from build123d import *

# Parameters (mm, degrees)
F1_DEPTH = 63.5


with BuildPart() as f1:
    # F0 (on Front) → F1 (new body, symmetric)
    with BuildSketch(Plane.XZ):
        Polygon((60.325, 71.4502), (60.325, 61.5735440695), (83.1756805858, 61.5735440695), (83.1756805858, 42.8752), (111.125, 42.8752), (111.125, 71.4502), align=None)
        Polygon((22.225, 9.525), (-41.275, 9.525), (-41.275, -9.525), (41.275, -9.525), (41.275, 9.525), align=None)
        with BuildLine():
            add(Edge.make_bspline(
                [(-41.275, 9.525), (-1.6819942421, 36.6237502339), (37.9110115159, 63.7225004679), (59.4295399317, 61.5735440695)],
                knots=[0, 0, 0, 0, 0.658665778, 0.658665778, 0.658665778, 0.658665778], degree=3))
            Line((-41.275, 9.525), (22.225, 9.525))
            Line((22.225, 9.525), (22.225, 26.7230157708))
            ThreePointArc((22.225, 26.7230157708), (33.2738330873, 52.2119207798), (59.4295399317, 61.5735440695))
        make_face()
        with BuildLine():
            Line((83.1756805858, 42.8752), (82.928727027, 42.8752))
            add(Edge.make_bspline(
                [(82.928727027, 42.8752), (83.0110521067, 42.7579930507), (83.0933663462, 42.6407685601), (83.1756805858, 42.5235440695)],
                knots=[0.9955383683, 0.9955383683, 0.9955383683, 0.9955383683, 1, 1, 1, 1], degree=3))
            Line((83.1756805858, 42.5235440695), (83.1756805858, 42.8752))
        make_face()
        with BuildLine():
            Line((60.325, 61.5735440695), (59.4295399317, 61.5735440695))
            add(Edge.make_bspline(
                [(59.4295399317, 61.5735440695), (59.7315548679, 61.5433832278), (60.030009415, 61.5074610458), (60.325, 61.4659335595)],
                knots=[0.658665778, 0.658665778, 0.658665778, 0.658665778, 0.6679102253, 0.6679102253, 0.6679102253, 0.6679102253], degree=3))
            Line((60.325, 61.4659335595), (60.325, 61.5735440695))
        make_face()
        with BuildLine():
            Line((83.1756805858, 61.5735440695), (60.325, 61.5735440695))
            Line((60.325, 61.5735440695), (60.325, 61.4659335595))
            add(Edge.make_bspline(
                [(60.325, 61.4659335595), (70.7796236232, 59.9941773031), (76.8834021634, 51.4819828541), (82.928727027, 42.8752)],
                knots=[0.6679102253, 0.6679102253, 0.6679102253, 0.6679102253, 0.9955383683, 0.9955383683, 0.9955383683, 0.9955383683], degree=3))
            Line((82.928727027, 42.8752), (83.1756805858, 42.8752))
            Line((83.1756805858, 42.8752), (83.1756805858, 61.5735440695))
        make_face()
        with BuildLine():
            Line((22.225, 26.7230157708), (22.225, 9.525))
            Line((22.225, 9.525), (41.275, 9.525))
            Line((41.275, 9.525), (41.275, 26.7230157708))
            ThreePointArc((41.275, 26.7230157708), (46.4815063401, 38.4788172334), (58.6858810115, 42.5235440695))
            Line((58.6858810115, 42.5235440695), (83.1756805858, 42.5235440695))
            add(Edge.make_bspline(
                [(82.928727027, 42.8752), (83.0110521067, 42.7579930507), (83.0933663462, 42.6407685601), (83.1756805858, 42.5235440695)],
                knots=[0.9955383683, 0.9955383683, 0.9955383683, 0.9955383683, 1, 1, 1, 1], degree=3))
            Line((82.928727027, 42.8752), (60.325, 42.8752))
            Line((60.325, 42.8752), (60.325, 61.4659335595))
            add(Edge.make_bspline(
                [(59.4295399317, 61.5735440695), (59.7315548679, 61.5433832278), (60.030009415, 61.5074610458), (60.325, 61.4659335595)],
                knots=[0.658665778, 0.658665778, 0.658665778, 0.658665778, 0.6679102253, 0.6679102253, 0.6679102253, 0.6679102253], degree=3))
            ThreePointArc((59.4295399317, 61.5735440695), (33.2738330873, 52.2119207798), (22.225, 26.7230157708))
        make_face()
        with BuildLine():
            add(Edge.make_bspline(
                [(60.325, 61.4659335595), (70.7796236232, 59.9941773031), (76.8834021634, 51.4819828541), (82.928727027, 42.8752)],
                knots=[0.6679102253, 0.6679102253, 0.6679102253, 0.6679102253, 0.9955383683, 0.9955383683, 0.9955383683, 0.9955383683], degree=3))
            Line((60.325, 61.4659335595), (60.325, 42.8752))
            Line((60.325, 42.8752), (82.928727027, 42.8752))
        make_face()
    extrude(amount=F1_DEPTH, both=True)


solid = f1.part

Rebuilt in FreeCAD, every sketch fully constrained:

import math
import FreeCAD as App
import Part
import Sketcher
Q = App.Units.Quantity

doc = App.newDocument("Part")
params = doc.addObject("Spreadsheet::Sheet", "Params")
for row, (alias, value) in enumerate([
    ("sketch1_width", "2 in"),
    ("sketch1_radius", "0.625 in"),
    ("sketch1_width2", "3.25 in"),
    ("sketch1_height", "0.75 in"),
    ("sketch1_height2", "1.125 in"),
    ("pad1_length", "5 in"),
], start=1):
    params.set(f"A{row}", alias)
    params.set(f"B{row}", "=" + value)
    params.setAlias(f"B{row}", alias)

body = doc.addObject("PartDesign::Body", "Body")

# Sketch on XZ plane
sketch1 = body.newObject("Sketcher::SketchObject", "Sketch")
sketch1.AttachmentSupport = (doc.getObject("XZ_Plane"), [""])
sketch1.MapMode = "FlatFace"
sketch1.addGeometry([
    Part.LineSegment(App.Vector(60.325, 71.4502, 0), App.Vector(60.325, 61.573544, 0)),  # 0
    Part.LineSegment(App.Vector(60.325, 61.573544, 0), App.Vector(59.42954, 61.573544, 0)),  # 1
    Part.BSplineCurve([App.Vector(-41.275, 9.525, 0), App.Vector(-1.681994, 36.62375, 0), App.Vector(37.911012, 63.7225, 0), App.Vector(59.42954, 61.573544, 0)], [4, 4], [0, 0.658665778], False, 3, [1, 1, 1, 1], False),  # 2
    Part.LineSegment(App.Vector(-41.275, 9.525, 0), App.Vector(-41.275, -9.525, 0)),  # 3
    Part.LineSegment(App.Vector(-41.275, -9.525, 0), App.Vector(41.275, -9.525, 0)),  # 4
    Part.LineSegment(App.Vector(41.275, -9.525, 0), App.Vector(41.275, 26.723016, 0)),  # 5
    Part.ArcOfCircle(Part.Circle(App.Vector(57.15, 26.723016, 0), App.Vector(0, 0, 1), 15.875), math.radians(84.44804), math.radians(180)),  # 6
    Part.LineSegment(App.Vector(58.685881, 42.523544, 0), App.Vector(83.175681, 42.523544, 0)),  # 7
    Part.LineSegment(App.Vector(83.175681, 42.523544, 0), App.Vector(83.175681, 42.8752, 0)),  # 8
    Part.LineSegment(App.Vector(83.175681, 42.8752, 0), App.Vector(111.125, 42.8752, 0)),  # 9
    Part.LineSegment(App.Vector(111.125, 42.8752, 0), App.Vector(111.125, 71.4502, 0)),  # 10
    Part.LineSegment(App.Vector(111.125, 71.4502, 0), App.Vector(60.325, 71.4502, 0)),  # 11
], False)
sketch1.addConstraint([
    Sketcher.Constraint("Block", 2),
    Sketcher.Constraint("Coincident", 0, 2, 1, 1),
    Sketcher.Constraint("Coincident", 1, 2, 2, 2),
    Sketcher.Constraint("Coincident", 2, 1, 3, 1),
    Sketcher.Constraint("Coincident", 3, 2, 4, 1),
    Sketcher.Constraint("Coincident", 4, 2, 5, 1),
    Sketcher.Constraint("Tangent", 5, 2, 6, 2),
    Sketcher.Constraint("Coincident", 6, 1, 7, 1),
    Sketcher.Constraint("Coincident", 7, 2, 8, 1),
    Sketcher.Constraint("Coincident", 8, 2, 9, 1),
    Sketcher.Constraint("Coincident", 9, 2, 10, 1),
    Sketcher.Constraint("Coincident", 10, 2, 11, 1),
    Sketcher.Constraint("Coincident", 11, 2, 0, 1),
    Sketcher.Constraint("Vertical", 0),
    Sketcher.Constraint("Horizontal", 1),
    Sketcher.Constraint("Vertical", 3),
    Sketcher.Constraint("Horizontal", 4),
    Sketcher.Constraint("Vertical", 5),
    Sketcher.Constraint("Horizontal", 7),
    Sketcher.Constraint("Vertical", 8),
    Sketcher.Constraint("Horizontal", 9),
    Sketcher.Constraint("Vertical", 10),
    Sketcher.Constraint("Horizontal", 11),
    Sketcher.Constraint("DistanceX", 11, 2, 11, 1, Q("2 in")),
    Sketcher.Constraint("Radius", 6, Q("0.625 in")),
    Sketcher.Constraint("DistanceX", 3, 2, 0, 2, Q("4 in")),
    Sketcher.Constraint("DistanceX", 4, 1, 4, 2, Q("3.25 in")),
    Sketcher.Constraint("DistanceY", 3, 2, 3, 1, Q("0.75 in")),
    Sketcher.Constraint("DistanceY", 10, 1, 10, 2, Q("1.125 in")),
    Sketcher.Constraint("DistanceY", 6, 1, 1, 2, Q("0.75 in")),
    Sketcher.Constraint("DistanceY", -1, 1, 8, 2, Q("1.688 in")),
    Sketcher.Constraint("DistanceX", 7, 1, 7, 2, Q("24.4898 mm")),
    Sketcher.Constraint("DistanceX", 9, 1, 9, 2, Q("27.949319 mm")),
])
sketch1.setExpression("Constraints[23]", "Params.sketch1_width")
sketch1.setExpression("Constraints[24]", "Params.sketch1_radius")
sketch1.setExpression("Constraints[26]", "Params.sketch1_width2")
sketch1.setExpression("Constraints[27]", "Params.sketch1_height")
sketch1.setExpression("Constraints[28]", "Params.sketch1_height2")
pad1 = body.newObject("PartDesign::Pad", "Pad")
pad1.Profile = sketch1
pad1.setExpression("Length", "Params.pad1_length")
pad1.Midplane = True

doc.recompute()
